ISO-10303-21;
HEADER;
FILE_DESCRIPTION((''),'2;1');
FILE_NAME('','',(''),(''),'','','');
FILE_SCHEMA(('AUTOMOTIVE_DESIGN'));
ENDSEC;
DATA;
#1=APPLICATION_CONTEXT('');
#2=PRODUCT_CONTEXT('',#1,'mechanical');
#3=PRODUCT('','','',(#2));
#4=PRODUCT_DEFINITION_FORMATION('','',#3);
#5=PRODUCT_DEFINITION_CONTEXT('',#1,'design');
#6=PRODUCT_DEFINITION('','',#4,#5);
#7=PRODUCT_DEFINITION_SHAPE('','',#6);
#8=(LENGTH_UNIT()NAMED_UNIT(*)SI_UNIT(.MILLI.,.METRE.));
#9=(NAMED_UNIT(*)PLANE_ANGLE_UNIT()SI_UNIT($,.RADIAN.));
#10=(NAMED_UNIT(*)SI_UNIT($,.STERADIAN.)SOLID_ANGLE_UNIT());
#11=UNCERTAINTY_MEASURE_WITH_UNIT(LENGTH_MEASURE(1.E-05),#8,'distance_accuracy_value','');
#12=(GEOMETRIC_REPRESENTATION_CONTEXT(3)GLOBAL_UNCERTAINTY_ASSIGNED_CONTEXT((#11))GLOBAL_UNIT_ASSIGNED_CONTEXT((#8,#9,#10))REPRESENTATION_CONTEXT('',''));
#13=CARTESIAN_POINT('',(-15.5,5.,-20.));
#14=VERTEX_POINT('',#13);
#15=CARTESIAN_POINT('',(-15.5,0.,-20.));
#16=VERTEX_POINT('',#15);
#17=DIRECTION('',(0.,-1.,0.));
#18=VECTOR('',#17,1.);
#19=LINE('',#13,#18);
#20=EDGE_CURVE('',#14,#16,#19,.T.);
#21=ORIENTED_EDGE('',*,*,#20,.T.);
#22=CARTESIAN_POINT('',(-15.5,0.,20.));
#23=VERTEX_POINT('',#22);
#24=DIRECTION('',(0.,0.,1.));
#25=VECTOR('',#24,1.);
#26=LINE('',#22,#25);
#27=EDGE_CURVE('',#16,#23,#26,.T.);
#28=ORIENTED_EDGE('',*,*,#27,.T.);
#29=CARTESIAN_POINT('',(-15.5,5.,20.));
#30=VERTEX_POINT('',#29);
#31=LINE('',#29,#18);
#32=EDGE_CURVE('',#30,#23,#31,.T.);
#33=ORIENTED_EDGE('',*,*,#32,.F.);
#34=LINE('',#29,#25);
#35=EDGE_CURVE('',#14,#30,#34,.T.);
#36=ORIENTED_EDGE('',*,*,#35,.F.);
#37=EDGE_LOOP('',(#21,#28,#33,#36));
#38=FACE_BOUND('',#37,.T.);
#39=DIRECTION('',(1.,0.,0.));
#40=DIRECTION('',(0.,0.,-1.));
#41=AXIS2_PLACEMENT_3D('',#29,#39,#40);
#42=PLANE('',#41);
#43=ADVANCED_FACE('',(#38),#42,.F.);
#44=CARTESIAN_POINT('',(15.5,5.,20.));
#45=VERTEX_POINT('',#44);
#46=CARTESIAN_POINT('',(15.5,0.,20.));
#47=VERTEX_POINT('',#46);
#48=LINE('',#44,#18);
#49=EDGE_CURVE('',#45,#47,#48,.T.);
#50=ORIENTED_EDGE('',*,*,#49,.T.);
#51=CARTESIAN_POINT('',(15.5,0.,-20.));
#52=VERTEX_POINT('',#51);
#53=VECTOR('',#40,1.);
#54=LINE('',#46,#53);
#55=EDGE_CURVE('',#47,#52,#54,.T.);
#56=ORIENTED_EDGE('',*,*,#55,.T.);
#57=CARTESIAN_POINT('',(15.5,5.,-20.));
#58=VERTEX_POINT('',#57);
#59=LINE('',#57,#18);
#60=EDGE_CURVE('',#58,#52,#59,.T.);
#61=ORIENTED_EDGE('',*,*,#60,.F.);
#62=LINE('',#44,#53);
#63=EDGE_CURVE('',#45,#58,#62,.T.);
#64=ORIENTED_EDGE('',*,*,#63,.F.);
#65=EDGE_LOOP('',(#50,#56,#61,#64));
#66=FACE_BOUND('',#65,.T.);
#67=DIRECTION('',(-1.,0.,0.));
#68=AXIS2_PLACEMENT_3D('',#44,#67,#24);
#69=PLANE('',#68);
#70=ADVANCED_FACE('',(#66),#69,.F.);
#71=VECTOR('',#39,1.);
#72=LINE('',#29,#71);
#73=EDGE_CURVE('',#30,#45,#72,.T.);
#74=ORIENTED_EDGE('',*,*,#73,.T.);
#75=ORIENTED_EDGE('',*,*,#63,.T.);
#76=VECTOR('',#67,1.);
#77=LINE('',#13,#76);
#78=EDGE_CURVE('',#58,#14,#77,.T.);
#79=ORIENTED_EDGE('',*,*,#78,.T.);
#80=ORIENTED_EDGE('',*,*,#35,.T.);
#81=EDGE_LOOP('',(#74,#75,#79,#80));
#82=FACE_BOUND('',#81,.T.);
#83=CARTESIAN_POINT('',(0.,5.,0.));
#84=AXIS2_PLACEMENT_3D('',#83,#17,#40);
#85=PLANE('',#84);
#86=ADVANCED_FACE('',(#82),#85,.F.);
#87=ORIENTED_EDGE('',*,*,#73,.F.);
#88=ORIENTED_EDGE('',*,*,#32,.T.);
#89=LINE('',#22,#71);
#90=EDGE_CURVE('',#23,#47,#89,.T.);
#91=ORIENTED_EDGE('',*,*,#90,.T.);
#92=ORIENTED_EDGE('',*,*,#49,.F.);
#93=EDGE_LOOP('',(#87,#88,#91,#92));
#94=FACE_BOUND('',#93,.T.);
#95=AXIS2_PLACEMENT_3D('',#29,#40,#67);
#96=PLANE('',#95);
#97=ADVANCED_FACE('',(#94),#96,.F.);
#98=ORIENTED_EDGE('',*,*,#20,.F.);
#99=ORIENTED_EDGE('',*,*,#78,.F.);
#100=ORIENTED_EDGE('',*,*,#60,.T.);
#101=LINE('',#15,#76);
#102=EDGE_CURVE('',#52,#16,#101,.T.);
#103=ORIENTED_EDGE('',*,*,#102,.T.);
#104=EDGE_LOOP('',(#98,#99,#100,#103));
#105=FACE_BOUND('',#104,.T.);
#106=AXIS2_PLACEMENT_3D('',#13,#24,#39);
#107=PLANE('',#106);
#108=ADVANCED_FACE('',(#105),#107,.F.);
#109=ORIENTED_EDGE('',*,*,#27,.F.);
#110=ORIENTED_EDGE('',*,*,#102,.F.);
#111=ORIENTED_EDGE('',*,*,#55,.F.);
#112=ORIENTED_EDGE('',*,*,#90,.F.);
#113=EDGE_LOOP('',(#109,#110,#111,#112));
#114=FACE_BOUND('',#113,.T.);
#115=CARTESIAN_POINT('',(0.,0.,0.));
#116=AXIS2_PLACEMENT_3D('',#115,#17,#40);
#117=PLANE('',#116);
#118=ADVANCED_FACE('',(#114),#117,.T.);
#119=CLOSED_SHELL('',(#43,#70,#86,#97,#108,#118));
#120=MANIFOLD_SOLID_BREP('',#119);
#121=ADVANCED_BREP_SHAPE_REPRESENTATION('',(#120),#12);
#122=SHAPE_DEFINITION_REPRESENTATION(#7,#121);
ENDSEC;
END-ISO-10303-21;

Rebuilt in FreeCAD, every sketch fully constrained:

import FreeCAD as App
import Part
import Sketcher
Q = App.Units.Quantity


def add_polygon(sketch, points):
    """Adds a closed chain of lines whose ends are joined by coincident constraints."""
    first, n = sketch.GeometryCount, len(points)
    for a, b in zip(points, points[1:] + points[:1]):
        sketch.addGeometry(Part.LineSegment(App.Vector(*a, 0), App.Vector(*b, 0)), False)
    for i in range(n):
        sketch.addConstraint(Sketcher.Constraint("Coincident", first + i, 2, first + (i + 1) % n, 1))

doc = App.newDocument("Part")
params = doc.addObject("Spreadsheet::Sheet", "Params")
for row, (alias, value) in enumerate([
    ("sketch1_width", "31 mm"),
    ("sketch1_height", "40 mm"),
    ("pad1_length", "5 mm"),
], start=1):
    params.set(f"A{row}", alias)
    params.set(f"B{row}", "=" + value)
    params.setAlias(f"B{row}", alias)

body = doc.addObject("PartDesign::Body", "Body")

sketch1 = body.newObject("Sketcher::SketchObject", "Sketch")
sketch1.AttachmentSupport = (doc.getObject("XZ_Plane"), [""])
sketch1.MapMode = "FlatFace"
add_polygon(sketch1, [(-16, -20), (-16, 20), (16, 20), (16, -20)])
sketch1.addConstraint(Sketcher.Constraint("Vertical", 0))
sketch1.addConstraint(Sketcher.Constraint("Horizontal", 1))
sketch1.addConstraint(Sketcher.Constraint("Vertical", 2))
sketch1.addConstraint(Sketcher.Constraint("Horizontal", 3))
sketch1.addConstraint(Sketcher.Constraint("Symmetric", 0, 2, 2, 2, -1, 1))
sketch1.addConstraint(Sketcher.Constraint("DistanceX", 1, 1, 1, 2, Q("31 mm")))
sketch1.addConstraint(Sketcher.Constraint("DistanceY", 0, 1, 0, 2, Q("40 mm")))
sketch1.setExpression("Constraints[9]", "Params.sketch1_width")
sketch1.setExpression("Constraints[10]", "Params.sketch1_height")
pad1 = body.newObject("PartDesign::Pad", "Pad")
pad1.Profile = sketch1
pad1.setExpression("Length", "Params.pad1_length")
pad1.Reversed = True

doc.recompute()
